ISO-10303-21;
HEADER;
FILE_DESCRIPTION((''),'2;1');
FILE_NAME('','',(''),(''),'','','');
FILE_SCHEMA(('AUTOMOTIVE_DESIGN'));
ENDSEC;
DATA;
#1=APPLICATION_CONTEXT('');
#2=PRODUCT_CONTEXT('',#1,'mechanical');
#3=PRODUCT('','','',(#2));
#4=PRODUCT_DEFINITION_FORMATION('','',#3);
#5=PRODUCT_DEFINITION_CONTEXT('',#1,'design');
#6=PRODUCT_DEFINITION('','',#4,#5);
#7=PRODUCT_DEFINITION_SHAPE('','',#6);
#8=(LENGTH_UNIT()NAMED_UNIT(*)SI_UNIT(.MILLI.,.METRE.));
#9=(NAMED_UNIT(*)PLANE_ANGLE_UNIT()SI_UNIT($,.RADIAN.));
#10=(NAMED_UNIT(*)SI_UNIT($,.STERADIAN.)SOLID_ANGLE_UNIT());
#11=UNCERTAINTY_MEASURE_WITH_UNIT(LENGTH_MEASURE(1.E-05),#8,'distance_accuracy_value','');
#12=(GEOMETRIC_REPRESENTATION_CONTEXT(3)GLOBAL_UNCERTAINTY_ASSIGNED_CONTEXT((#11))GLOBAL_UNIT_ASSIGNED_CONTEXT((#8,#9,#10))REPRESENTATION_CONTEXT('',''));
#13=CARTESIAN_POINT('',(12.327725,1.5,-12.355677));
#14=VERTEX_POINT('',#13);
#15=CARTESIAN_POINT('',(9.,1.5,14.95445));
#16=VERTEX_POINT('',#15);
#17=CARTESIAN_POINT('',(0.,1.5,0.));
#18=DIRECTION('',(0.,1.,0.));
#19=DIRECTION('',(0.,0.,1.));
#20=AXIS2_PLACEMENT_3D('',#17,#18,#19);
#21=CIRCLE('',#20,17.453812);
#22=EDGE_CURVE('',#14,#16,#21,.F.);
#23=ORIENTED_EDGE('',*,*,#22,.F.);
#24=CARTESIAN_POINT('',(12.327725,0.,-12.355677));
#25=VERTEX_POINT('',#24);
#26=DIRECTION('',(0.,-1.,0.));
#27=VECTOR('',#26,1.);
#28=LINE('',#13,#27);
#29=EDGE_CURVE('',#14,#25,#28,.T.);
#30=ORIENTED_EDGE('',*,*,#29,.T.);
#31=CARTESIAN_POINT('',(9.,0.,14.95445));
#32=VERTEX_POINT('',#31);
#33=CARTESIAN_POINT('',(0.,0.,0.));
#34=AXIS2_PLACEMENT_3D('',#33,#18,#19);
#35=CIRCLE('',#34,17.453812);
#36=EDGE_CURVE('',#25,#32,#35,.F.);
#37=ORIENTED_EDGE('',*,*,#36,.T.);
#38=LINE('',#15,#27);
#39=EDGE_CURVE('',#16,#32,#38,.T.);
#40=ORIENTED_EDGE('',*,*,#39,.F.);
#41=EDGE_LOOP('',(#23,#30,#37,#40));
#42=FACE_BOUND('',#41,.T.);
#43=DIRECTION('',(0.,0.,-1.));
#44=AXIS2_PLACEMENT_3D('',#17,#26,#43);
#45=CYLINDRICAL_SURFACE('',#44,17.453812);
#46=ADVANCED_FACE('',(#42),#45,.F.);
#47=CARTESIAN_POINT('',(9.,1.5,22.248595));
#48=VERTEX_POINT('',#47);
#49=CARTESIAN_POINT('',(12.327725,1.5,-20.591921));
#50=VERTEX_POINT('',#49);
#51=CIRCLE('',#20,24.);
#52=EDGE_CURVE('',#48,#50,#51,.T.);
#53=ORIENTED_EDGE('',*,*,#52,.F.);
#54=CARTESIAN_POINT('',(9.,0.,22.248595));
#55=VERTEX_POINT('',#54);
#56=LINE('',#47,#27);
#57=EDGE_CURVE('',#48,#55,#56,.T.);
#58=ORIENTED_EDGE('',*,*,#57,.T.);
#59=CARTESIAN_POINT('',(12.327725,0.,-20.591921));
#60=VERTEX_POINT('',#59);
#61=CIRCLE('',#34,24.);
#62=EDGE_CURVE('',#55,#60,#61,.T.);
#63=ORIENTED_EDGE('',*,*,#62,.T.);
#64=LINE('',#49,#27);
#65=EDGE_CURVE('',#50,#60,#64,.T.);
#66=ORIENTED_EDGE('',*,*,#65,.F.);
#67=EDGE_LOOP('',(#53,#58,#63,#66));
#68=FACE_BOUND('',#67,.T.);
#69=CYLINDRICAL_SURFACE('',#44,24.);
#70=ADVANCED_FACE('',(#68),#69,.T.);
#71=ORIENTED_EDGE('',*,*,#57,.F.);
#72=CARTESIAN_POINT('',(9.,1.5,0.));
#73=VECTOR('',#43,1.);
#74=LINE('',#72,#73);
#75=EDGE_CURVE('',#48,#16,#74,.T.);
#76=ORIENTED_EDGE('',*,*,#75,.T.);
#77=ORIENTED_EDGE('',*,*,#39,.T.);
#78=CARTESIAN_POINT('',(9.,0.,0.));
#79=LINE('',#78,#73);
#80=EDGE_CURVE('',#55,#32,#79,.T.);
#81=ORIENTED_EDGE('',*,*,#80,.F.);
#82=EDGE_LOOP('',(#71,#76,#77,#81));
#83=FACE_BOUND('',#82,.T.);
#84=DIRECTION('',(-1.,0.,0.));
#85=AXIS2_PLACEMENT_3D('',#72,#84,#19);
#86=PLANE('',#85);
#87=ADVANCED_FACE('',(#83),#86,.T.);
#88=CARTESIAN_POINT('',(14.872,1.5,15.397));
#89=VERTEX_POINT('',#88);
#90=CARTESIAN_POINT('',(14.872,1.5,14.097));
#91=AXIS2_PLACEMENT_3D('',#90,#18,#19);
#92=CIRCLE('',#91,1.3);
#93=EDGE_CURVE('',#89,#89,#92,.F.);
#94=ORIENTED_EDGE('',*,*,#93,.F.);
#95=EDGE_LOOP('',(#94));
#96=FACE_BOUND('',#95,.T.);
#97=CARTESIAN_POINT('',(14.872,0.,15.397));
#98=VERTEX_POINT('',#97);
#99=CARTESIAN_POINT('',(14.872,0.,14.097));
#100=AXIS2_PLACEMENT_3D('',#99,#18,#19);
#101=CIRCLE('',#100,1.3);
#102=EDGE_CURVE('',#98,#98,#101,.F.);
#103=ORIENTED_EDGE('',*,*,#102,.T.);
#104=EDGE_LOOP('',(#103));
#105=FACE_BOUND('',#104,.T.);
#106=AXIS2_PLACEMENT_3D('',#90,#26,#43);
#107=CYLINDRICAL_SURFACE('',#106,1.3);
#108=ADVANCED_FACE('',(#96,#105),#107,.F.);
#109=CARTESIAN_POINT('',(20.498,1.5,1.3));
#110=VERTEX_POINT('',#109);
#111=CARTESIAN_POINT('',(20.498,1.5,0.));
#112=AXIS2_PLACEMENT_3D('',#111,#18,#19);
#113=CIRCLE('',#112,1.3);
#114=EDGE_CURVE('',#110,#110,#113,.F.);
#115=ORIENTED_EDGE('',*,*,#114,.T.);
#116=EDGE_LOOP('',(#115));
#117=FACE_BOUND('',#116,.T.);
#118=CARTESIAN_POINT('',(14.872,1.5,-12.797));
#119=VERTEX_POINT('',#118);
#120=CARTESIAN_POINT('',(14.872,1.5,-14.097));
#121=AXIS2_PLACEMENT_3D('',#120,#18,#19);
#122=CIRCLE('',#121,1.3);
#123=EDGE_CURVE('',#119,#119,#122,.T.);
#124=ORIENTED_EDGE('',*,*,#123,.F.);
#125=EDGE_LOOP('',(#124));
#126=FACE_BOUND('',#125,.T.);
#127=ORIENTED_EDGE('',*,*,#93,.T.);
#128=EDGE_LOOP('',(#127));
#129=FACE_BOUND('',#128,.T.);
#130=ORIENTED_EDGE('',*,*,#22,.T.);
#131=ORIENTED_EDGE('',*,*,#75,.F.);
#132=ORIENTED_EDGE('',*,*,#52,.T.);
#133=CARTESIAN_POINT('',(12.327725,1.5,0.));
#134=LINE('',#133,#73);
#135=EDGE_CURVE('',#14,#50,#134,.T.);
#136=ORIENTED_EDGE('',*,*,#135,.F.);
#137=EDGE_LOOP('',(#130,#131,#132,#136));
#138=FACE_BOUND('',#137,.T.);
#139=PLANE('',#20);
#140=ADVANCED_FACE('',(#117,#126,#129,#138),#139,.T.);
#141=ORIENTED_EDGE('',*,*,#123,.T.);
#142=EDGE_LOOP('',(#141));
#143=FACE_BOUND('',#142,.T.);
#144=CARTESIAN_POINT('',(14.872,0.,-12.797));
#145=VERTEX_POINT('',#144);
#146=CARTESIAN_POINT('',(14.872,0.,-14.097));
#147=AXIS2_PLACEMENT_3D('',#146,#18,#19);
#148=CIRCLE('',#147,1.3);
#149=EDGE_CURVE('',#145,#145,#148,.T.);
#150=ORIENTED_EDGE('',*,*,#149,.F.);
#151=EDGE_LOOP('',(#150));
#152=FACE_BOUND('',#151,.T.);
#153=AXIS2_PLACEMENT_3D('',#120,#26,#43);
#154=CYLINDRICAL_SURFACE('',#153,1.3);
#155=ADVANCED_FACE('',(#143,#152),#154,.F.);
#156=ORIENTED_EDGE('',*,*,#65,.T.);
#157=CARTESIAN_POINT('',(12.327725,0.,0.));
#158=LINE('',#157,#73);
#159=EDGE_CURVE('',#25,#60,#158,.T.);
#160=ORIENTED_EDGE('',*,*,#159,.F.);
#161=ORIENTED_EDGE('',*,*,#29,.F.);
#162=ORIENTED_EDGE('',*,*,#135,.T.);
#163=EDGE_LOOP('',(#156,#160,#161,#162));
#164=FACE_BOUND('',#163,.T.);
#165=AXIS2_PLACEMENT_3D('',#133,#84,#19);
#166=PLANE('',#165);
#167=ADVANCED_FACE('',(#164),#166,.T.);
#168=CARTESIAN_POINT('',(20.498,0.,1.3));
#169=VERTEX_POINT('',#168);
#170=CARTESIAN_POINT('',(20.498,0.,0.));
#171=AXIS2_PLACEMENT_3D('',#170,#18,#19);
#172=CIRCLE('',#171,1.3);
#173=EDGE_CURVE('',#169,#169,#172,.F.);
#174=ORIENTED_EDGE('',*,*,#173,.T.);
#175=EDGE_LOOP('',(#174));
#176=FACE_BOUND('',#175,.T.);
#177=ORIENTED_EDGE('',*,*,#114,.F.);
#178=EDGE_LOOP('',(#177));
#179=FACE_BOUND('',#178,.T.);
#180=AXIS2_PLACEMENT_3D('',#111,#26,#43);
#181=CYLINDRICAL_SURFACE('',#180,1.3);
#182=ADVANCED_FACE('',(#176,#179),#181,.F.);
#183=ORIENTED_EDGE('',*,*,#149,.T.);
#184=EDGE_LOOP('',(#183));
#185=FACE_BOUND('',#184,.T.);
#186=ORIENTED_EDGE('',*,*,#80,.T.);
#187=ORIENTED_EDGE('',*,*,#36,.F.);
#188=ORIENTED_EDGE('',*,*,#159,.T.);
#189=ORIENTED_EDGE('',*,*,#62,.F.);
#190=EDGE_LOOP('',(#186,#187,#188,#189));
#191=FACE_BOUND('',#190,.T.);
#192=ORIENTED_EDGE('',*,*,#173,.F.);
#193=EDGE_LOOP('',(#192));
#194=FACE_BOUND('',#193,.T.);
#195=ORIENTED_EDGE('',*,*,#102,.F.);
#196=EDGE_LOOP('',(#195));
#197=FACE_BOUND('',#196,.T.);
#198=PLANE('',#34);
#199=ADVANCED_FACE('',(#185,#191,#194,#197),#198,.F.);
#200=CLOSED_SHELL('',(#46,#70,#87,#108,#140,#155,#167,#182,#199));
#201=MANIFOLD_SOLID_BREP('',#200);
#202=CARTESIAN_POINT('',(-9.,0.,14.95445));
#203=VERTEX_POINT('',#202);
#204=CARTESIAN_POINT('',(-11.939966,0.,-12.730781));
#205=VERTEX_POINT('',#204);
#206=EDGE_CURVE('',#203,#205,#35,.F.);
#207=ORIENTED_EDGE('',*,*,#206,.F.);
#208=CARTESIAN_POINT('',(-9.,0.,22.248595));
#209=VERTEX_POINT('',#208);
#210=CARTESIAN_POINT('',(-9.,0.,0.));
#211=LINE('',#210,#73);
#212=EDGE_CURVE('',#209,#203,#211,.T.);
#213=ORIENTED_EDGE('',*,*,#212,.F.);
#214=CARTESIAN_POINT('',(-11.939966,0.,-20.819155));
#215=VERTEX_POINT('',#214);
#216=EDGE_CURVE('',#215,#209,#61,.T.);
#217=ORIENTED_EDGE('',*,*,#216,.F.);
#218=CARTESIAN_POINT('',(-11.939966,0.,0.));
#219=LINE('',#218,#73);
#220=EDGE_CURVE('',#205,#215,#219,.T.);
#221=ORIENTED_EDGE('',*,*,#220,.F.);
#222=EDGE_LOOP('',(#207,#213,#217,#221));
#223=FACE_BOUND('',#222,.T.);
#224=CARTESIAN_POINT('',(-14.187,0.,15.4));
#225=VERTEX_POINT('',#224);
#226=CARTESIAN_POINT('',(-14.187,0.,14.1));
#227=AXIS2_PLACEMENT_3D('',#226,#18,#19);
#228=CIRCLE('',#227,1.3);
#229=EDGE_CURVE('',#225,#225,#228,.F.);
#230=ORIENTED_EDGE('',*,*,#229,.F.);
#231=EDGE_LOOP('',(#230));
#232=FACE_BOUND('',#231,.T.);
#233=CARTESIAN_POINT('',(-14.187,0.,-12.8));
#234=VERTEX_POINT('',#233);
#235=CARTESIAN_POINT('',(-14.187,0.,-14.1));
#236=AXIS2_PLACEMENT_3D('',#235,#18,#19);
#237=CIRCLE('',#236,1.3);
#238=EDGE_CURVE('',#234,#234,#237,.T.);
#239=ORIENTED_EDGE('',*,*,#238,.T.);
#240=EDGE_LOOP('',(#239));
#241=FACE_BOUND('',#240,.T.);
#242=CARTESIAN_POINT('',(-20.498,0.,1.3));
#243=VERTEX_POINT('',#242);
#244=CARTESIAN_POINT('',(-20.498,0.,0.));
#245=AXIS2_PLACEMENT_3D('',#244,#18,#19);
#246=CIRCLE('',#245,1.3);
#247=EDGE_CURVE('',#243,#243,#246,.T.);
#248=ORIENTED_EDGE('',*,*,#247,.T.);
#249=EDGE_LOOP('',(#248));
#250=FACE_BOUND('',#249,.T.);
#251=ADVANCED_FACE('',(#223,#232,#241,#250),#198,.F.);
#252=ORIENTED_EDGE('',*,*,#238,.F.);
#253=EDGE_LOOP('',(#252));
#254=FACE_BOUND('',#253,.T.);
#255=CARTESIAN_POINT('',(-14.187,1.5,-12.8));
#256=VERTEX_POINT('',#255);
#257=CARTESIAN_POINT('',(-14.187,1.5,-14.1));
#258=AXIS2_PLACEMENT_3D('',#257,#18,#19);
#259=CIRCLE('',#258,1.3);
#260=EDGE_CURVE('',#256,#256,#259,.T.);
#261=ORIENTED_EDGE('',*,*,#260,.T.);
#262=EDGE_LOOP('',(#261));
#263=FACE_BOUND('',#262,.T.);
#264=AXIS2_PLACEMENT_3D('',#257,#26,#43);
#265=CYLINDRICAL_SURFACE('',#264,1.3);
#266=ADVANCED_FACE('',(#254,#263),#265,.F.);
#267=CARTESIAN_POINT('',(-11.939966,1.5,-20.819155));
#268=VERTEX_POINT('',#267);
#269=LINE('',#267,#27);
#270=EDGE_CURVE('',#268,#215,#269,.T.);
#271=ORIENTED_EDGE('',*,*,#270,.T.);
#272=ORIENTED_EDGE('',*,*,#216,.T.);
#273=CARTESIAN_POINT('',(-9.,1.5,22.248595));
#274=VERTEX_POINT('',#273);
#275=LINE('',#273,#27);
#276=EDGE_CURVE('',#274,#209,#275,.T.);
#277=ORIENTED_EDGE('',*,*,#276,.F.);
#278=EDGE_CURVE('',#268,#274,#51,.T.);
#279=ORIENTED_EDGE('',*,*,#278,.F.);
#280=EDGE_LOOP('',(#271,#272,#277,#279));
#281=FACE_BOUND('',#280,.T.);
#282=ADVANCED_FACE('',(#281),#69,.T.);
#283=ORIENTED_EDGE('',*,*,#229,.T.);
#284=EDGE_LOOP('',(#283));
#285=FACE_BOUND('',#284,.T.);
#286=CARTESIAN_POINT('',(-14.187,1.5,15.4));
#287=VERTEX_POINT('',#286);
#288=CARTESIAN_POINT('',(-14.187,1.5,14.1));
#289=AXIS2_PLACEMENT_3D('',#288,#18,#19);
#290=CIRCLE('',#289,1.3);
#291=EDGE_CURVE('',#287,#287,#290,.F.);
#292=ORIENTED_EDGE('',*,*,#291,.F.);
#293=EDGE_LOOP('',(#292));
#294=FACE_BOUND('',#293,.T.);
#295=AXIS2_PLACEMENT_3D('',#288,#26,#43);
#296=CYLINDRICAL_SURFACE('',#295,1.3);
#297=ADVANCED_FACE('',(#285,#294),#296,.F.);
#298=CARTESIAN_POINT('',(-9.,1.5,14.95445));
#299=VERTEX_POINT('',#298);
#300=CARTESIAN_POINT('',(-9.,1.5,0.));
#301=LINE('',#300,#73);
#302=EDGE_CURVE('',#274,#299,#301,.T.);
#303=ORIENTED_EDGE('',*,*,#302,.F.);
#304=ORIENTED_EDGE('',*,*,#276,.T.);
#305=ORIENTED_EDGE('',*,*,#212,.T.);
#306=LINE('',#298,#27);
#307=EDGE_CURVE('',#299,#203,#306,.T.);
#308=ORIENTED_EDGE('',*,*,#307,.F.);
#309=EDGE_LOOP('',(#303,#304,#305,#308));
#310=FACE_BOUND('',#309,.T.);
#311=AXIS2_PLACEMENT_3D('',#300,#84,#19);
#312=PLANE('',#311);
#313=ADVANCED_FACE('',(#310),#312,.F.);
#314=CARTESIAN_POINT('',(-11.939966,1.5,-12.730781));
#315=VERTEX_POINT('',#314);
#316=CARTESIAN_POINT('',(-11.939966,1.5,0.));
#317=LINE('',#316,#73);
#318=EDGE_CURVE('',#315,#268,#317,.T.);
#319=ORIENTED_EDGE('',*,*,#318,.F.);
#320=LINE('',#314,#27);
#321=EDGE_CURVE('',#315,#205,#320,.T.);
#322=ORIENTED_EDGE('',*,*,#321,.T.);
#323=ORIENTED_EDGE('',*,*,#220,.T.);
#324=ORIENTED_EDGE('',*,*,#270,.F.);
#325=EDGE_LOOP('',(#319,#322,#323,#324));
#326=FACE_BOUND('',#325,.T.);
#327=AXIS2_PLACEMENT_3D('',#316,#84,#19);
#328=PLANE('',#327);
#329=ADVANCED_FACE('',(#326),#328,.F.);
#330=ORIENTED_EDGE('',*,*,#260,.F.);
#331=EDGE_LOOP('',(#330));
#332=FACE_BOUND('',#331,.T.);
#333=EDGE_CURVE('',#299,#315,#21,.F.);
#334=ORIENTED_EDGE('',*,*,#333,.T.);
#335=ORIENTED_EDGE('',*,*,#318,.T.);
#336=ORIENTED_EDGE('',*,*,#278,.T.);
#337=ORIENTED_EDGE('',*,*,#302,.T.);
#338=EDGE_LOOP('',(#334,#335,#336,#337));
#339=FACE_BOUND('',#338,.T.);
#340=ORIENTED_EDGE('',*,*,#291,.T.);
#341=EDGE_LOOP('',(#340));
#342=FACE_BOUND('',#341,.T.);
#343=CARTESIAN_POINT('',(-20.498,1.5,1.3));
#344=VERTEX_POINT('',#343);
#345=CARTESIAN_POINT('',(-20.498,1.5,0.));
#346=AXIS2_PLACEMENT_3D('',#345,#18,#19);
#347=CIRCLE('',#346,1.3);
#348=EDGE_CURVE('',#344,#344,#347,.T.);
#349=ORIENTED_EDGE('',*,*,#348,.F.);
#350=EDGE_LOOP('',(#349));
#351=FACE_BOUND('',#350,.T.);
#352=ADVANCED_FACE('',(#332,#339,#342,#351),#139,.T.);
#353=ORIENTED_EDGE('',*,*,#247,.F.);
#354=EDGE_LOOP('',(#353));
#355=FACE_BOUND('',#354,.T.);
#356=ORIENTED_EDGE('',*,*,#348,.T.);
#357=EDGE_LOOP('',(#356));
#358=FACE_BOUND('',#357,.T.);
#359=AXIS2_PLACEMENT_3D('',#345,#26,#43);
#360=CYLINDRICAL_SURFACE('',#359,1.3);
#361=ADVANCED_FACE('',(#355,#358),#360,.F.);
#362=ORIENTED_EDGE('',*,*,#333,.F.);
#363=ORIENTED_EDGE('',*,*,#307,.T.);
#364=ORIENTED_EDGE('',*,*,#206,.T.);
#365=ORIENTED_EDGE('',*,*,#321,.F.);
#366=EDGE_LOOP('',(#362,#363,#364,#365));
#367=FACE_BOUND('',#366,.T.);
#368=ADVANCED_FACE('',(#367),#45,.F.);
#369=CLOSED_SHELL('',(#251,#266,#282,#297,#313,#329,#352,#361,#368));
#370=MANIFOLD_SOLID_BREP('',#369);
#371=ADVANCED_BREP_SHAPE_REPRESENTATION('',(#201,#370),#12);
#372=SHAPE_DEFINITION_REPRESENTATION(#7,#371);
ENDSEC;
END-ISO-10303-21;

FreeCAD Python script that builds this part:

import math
import FreeCAD as App
import Part
import Sketcher

V = App.Vector

doc = App.newDocument("Part")
body = doc.addObject("PartDesign::Body", "Body")
body.AllowCompound = True

# Sketch on XZ plane
sketch1 = body.newObject("Sketcher::SketchObject", "Sketch")
sketch1.AttachmentSupport = (doc.getObject("XZ_Plane"), [""])
sketch1.MapMode = "FlatFace"
sketch1.addGeometry(Part.LineSegment(V(-9, 22.2, 0), V(-9, 15, 0)), False)
sketch1.addGeometry(Part.ArcOfCircle(Part.Circle(V(0, 0, 0), V(0, 0, 1), 17.5), math.radians(121), math.radians(227)), False)
sketch1.addGeometry(Part.LineSegment(V(-11.9, -12.7, 0), V(-11.9, -20.8, 0)), False)
sketch1.addGeometry(Part.ArcOfCircle(Part.Circle(V(0, 0, 0), V(0, 0, 1), 24), math.radians(112), math.radians(240)), False)
sketch1.addGeometry(Part.Circle(V(-14.2, -14.1, 0), V(0, 0, 1), 1.3), False)
sketch1.addGeometry(Part.Circle(V(-14.2, 14.1, 0), V(0, 0, 1), 1.3), False)
sketch1.addGeometry(Part.Circle(V(-20.5, 0, 0), V(0, 0, 1), 1.3), False)
sketch1.addGeometry(Part.LineSegment(V(12.3, -20.6, 0), V(12.3, -12.4, 0)), False)
sketch1.addGeometry(Part.ArcOfCircle(Part.Circle(V(0, 0, 0), V(0, 0, 1), 17.5), math.radians(-45), math.radians(59)), False)
sketch1.addGeometry(Part.LineSegment(V(9, 15, 0), V(9, 22.2, 0)), False)
sketch1.addGeometry(Part.ArcOfCircle(Part.Circle(V(0, 0, 0), V(0, 0, 1), 24), math.radians(0), math.radians(68)), False)
sketch1.addGeometry(Part.ArcOfCircle(Part.Circle(V(0, 0, 0), V(0, 0, 1), 24), math.radians(-59), math.radians(0)), False)
sketch1.addGeometry(Part.Circle(V(14.9, 14.1, 0), V(0, 0, 1), 1.3), False)
sketch1.addGeometry(Part.Circle(V(14.9, -14.1, 0), V(0, 0, 1), 1.3), False)
sketch1.addGeometry(Part.Circle(V(20.5, 0, 0), V(0, 0, 1), 1.3), False)
sketch1.addConstraint(Sketcher.Constraint("Coincident", 0, 2, 1, 1))
sketch1.addConstraint(Sketcher.Constraint("Coincident", 1, 2, 2, 1))
sketch1.addConstraint(Sketcher.Constraint("Coincident", 2, 2, 3, 2))
sketch1.addConstraint(Sketcher.Constraint("Coincident", 3, 1, 0, 1))
sketch1.addConstraint(Sketcher.Constraint("Coincident", 7, 2, 8, 1))
sketch1.addConstraint(Sketcher.Constraint("Coincident", 8, 2, 9, 1))
sketch1.addConstraint(Sketcher.Constraint("Coincident", 9, 2, 10, 2))
sketch1.addConstraint(Sketcher.Constraint("Tangent", 10, 1, 11, 2))
sketch1.addConstraint(Sketcher.Constraint("Coincident", 11, 1, 7, 1))
sketch1.addConstraint(Sketcher.Constraint("Vertical", 0))
sketch1.addConstraint(Sketcher.Constraint("Vertical", 2))
sketch1.addConstraint(Sketcher.Constraint("Vertical", 7))
sketch1.addConstraint(Sketcher.Constraint("Vertical", 9))
sketch1.addConstraint(Sketcher.Constraint("Coincident", 1, 3, -1, 1))
sketch1.addConstraint(Sketcher.Constraint("Coincident", 3, 3, -1, 1))
sketch1.addConstraint(Sketcher.Constraint("Coincident", 8, 3, -1, 1))
sketch1.addConstraint(Sketcher.Constraint("Coincident", 10, 3, -1, 1))
sketch1.addConstraint(Sketcher.Constraint("Equal", 4, 5))
sketch1.addConstraint(Sketcher.Constraint("Equal", 5, 6))
sketch1.addConstraint(Sketcher.Constraint("Equal", 1, 8))
sketch1.addConstraint(Sketcher.Constraint("Equal", 3, 10))
sketch1.addConstraint(Sketcher.Constraint("Equal", 10, 11))
sketch1.addConstraint(Sketcher.Constraint("Equal", 6, 12))
sketch1.addConstraint(Sketcher.Constraint("Equal", 12, 13))
sketch1.addConstraint(Sketcher.Constraint("Equal", 13, 14))
sketch1.addConstraint(Sketcher.Constraint("Symmetric", 6, 3, 14, 3, -1, 1))
sketch1.addConstraint(Sketcher.Constraint("Symmetric", 4, 3, 5, 3, -1))
sketch1.addConstraint(Sketcher.Constraint("Symmetric", 12, 3, 13, 3, -1))
sketch1.addConstraint(Sketcher.Constraint("PointOnObject", 6, 3, -1))
sketch1.addConstraint(Sketcher.Constraint("PointOnObject", 10, 1, -1))
sketch1.addConstraint(Sketcher.Constraint("Horizontal", 0, 2, 8, 2))
sketch1.addConstraint(Sketcher.Constraint("Radius", 3, 24.0))
sketch1.addConstraint(Sketcher.Constraint("Diameter", 4, 2.6))
sketch1.addConstraint(Sketcher.Constraint("DistanceX", 0, 2, -1, 1, 9.0))
sketch1.addConstraint(Sketcher.Constraint("DistanceY", 4, 3, -1, 1, 14.1))
sketch1.addConstraint(Sketcher.Constraint("DistanceX", 4, 3, -1, 1, 14.187))
sketch1.addConstraint(Sketcher.Constraint("DistanceX", 6, 3, -1, 1, 20.498))
sketch1.addConstraint(Sketcher.Constraint("DistanceX", -1, 1, 12, 3, 14.872))
sketch1.addConstraint(Sketcher.Constraint("DistanceY", -1, 1, 12, 3, 14.097))
sketch1.addConstraint(Sketcher.Constraint("Radius", 1, 17.453812))
sketch1.addConstraint(Sketcher.Constraint("DistanceY", 2, 2, 2, 1, 8.088374))
sketch1.addConstraint(Sketcher.Constraint("DistanceY", 7, 1, 7, 2, 8.236243))
pad1 = body.newObject("PartDesign::Pad", "Pad")
pad1.Profile = sketch1
pad1.Length = 1.5
pad1.Reversed = True

doc.recompute()
